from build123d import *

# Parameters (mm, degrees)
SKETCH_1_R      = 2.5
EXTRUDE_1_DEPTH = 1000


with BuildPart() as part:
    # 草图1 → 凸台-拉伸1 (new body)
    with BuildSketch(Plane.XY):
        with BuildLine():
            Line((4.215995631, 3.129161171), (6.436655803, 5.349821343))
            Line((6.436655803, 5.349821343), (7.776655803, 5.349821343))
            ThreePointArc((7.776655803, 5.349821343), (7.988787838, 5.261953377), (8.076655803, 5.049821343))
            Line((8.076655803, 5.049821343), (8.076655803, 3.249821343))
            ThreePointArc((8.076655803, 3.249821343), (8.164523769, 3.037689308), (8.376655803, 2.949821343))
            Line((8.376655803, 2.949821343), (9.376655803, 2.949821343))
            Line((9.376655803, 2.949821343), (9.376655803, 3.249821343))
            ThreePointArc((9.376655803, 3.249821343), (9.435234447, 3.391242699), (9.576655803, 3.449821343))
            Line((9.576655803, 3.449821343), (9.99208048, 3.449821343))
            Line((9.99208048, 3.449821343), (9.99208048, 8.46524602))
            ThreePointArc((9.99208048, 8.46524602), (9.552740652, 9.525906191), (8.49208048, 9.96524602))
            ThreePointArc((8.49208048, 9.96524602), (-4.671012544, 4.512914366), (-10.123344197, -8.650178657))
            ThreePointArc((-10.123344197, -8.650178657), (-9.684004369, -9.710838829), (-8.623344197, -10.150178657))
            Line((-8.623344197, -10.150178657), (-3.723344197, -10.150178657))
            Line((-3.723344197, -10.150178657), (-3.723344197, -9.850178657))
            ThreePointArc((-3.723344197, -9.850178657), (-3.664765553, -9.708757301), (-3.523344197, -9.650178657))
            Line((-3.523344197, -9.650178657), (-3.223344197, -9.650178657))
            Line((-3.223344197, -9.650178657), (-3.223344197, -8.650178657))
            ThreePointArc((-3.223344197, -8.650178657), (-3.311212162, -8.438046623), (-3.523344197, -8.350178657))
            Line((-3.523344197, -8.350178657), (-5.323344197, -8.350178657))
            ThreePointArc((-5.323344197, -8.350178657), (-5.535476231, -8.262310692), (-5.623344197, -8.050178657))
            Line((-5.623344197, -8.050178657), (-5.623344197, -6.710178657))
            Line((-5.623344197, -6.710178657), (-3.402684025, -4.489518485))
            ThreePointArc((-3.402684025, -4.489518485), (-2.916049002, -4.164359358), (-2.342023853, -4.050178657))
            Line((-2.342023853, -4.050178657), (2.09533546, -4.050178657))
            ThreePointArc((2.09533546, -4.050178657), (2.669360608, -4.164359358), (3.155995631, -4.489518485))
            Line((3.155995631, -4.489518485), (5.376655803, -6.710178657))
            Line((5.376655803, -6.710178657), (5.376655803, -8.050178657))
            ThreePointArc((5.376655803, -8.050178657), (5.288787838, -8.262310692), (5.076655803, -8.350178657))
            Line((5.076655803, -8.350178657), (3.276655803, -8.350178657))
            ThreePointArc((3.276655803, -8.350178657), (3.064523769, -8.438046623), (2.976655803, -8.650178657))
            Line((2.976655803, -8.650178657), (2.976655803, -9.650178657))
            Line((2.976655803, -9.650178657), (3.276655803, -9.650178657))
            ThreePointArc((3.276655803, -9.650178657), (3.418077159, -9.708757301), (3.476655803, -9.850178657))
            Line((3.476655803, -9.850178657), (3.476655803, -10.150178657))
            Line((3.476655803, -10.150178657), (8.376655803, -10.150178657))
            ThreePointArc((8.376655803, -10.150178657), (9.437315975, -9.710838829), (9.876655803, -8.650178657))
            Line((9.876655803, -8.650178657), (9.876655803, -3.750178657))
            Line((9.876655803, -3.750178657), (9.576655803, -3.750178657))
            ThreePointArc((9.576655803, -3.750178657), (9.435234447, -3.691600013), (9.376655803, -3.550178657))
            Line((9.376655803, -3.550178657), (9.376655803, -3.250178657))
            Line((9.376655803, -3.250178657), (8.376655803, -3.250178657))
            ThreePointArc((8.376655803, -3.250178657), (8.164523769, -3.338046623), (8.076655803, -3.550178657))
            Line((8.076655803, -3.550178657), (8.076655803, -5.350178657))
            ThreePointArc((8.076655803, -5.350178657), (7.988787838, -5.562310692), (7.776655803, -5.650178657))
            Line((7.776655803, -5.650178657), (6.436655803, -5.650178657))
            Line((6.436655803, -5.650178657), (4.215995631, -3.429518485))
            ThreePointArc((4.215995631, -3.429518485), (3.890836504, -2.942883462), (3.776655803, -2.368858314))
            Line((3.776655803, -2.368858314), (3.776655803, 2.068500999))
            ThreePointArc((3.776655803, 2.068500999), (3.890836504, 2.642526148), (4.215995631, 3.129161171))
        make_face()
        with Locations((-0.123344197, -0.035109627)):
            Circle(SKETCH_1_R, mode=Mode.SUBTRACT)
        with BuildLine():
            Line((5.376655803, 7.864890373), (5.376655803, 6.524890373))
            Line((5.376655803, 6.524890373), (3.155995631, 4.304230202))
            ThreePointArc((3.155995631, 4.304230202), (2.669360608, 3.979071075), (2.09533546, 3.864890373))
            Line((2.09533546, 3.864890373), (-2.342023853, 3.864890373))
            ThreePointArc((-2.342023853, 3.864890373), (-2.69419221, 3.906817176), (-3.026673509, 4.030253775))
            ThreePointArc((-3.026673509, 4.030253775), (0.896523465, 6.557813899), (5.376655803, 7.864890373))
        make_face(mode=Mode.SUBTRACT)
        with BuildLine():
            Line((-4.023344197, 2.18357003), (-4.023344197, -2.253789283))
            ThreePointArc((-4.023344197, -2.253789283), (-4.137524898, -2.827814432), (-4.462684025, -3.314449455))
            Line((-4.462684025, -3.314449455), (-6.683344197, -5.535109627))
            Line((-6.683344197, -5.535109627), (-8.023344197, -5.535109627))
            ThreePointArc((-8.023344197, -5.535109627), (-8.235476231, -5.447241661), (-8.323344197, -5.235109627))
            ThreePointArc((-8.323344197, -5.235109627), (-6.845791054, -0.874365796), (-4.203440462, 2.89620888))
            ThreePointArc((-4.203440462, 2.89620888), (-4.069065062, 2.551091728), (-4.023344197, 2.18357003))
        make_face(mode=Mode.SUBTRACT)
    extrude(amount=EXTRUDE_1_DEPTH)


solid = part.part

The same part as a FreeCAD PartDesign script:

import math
import FreeCAD as App
import Part
import Sketcher

V = App.Vector
Q = App.Units.Quantity

doc = App.newDocument("Part")
body = doc.addObject("PartDesign::Body", "Body")

sketch1 = doc.addObject("Sketcher::SketchObject", "Sketch")
body.addObject(sketch1)
sketch1.AttachmentSupport = (doc.XY_Plane, [""])
sketch1.MapMode = "FlatFace"
sketch1.addGeometry(Part.LineSegment(V(4.22, 3.13, 0), V(6.44, 5.35, 0)), False)
sketch1.addGeometry(Part.LineSegment(V(6.44, 5.35, 0), V(7.78, 5.35, 0)), False)
sketch1.addGeometry(Part.ArcOfCircle(Part.Circle(V(7.78, 5.05, 0), V(0, 0, 1), 0.3), math.radians(0), math.radians(90)), False)
sketch1.addGeometry(Part.LineSegment(V(8.08, 5.05, 0), V(8.08, 3.25, 0)), False)
sketch1.addGeometry(Part.ArcOfCircle(Part.Circle(V(8.38, 3.25, 0), V(0, 0, 1), 0.3), math.radians(180), math.radians(270)), False)
sketch1.addGeometry(Part.LineSegment(V(8.38, 2.95, 0), V(9.38, 2.95, 0)), False)
sketch1.addGeometry(Part.LineSegment(V(9.38, 2.95, 0), V(9.38, 3.25, 0)), False)
sketch1.addGeometry(Part.ArcOfCircle(Part.Circle(V(9.58, 3.25, 0), V(0, 0, 1), 0.2), math.radians(90), math.radians(180)), False)
sketch1.addGeometry(Part.LineSegment(V(9.58, 3.45, 0), V(9.99, 3.45, 0)), False)
sketch1.addGeometry(Part.LineSegment(V(9.99, 3.45, 0), V(9.99, 8.47, 0)), False)
sketch1.addGeometry(Part.ArcOfCircle(Part.Circle(V(8.49, 8.47, 0), V(0, 0, 1), 1.5), math.radians(0), math.radians(90)), False)
sketch1.addGeometry(Part.ArcOfCircle(Part.Circle(V(8.49, -8.65, 0), V(0, 0, 1), 18.62), math.radians(90), math.radians(180)), False)
sketch1.addGeometry(Part.ArcOfCircle(Part.Circle(V(-8.62, -8.65, 0), V(0, 0, 1), 1.5), math.radians(180), math.radians(270)), False)
sketch1.addGeometry(Part.LineSegment(V(-8.62, -10.15, 0), V(-3.72, -10.15, 0)), False)
sketch1.addGeometry(Part.LineSegment(V(-3.72, -10.15, 0), V(-3.72, -9.85, 0)), False)
sketch1.addGeometry(Part.ArcOfCircle(Part.Circle(V(-3.52, -9.85, 0), V(0, 0, 1), 0.2), math.radians(90), math.radians(180)), False)
sketch1.addGeometry(Part.LineSegment(V(-3.52, -9.65, 0), V(-3.22, -9.65, 0)), False)
sketch1.addGeometry(Part.LineSegment(V(-3.22, -9.65, 0), V(-3.22, -8.65, 0)), False)
sketch1.addGeometry(Part.ArcOfCircle(Part.Circle(V(-3.52, -8.65, 0), V(0, 0, 1), 0.3), math.radians(0), math.radians(90)), False)
sketch1.addGeometry(Part.LineSegment(V(-3.52, -8.35, 0), V(-5.32, -8.35, 0)), False)
sketch1.addGeometry(Part.ArcOfCircle(Part.Circle(V(-5.32, -8.05, 0), V(0, 0, 1), 0.3), math.radians(180), math.radians(270)), False)
sketch1.addGeometry(Part.LineSegment(V(-5.62, -8.05, 0), V(-5.62, -6.71, 0)), False)
sketch1.addGeometry(Part.LineSegment(V(-5.62, -6.71, 0), V(-3.4, -4.49, 0)), False)
sketch1.addGeometry(Part.ArcOfCircle(Part.Circle(V(-2.34, -5.55, 0), V(0, 0, 1), 1.5), math.radians(90), math.radians(135)), False)
sketch1.addGeometry(Part.LineSegment(V(-2.34, -4.05, 0), V(2.1, -4.05, 0)), False)
sketch1.addGeometry(Part.ArcOfCircle(Part.Circle(V(2.1, -5.55, 0), V(0, 0, 1), 1.5), math.radians(45), math.radians(90)), False)
sketch1.addGeometry(Part.LineSegment(V(3.16, -4.49, 0), V(5.38, -6.71, 0)), False)
sketch1.addGeometry(Part.LineSegment(V(5.38, -6.71, 0), V(5.38, -8.05, 0)), False)
sketch1.addGeometry(Part.ArcOfCircle(Part.Circle(V(5.08, -8.05, 0), V(0, 0, 1), 0.3), math.radians(-90), math.radians(0)), False)
sketch1.addGeometry(Part.LineSegment(V(5.08, -8.35, 0), V(3.28, -8.35, 0)), False)
sketch1.addGeometry(Part.ArcOfCircle(Part.Circle(V(3.28, -8.65, 0), V(0, 0, 1), 0.3), math.radians(90), math.radians(180)), False)
sketch1.addGeometry(Part.LineSegment(V(2.98, -8.65, 0), V(2.98, -9.65, 0)), False)
sketch1.addGeometry(Part.LineSegment(V(2.98, -9.65, 0), V(3.28, -9.65, 0)), False)
sketch1.addGeometry(Part.ArcOfCircle(Part.Circle(V(3.28, -9.85, 0), V(0, 0, 1), 0.2), math.radians(0), math.radians(90)), False)
sketch1.addGeometry(Part.LineSegment(V(3.48, -9.85, 0), V(3.48, -10.15, 0)), False)
sketch1.addGeometry(Part.LineSegment(V(3.48, -10.15, 0), V(8.38, -10.15, 0)), False)
sketch1.addGeometry(Part.ArcOfCircle(Part.Circle(V(8.38, -8.65, 0), V(0, 0, 1), 1.5), math.radians(-90), math.radians(0)), False)
sketch1.addGeometry(Part.LineSegment(V(9.88, -8.65, 0), V(9.88, -3.75, 0)), False)
sketch1.addGeometry(Part.LineSegment(V(9.88, -3.75, 0), V(9.58, -3.75, 0)), False)
sketch1.addGeometry(Part.ArcOfCircle(Part.Circle(V(9.58, -3.55, 0), V(0, 0, 1), 0.2), math.radians(-180), math.radians(-90)), False)
sketch1.addGeometry(Part.LineSegment(V(9.38, -3.55, 0), V(9.38, -3.25, 0)), False)
sketch1.addGeometry(Part.LineSegment(V(9.38, -3.25, 0), V(8.38, -3.25, 0)), False)
sketch1.addGeometry(Part.ArcOfCircle(Part.Circle(V(8.38, -3.55, 0), V(0, 0, 1), 0.3), math.radians(90), math.radians(180)), False)
sketch1.addGeometry(Part.LineSegment(V(8.08, -3.55, 0), V(8.08, -5.35, 0)), False)
sketch1.addGeometry(Part.ArcOfCircle(Part.Circle(V(7.78, -5.35, 0), V(0, 0, 1), 0.3), math.radians(-90), math.radians(0)), False)
sketch1.addGeometry(Part.LineSegment(V(7.78, -5.65, 0), V(6.44, -5.65, 0)), False)
sketch1.addGeometry(Part.LineSegment(V(6.44, -5.65, 0), V(4.22, -3.43, 0)), False)
sketch1.addGeometry(Part.ArcOfCircle(Part.Circle(V(5.28, -2.37, 0), V(0, 0, 1), 1.5), math.radians(180), math.radians(225)), False)
sketch1.addGeometry(Part.LineSegment(V(3.78, -2.37, 0), V(3.78, 2.07, 0)), False)
sketch1.addGeometry(Part.ArcOfCircle(Part.Circle(V(5.28, 2.07, 0), V(0, 0, 1), 1.5), math.radians(135), math.radians(180)), False)
sketch1.addGeometry(Part.ArcOfCircle(Part.Circle(V(-5.52, 2.18, 0), V(0, 0, 1), 1.5), math.radians(0), math.radians(28)), False)
sketch1.addGeometry(Part.LineSegment(V(-4.02, 2.18, 0), V(-4.02, -2.25, 0)), False)
sketch1.addGeometry(Part.ArcOfCircle(Part.Circle(V(-5.52, -2.25, 0), V(0, 0, 1), 1.5), math.radians(-45), math.radians(0)), False)
sketch1.addGeometry(Part.LineSegment(V(-4.46, -3.31, 0), V(-6.68, -5.54, 0)), False)
sketch1.addGeometry(Part.LineSegment(V(-6.68, -5.54, 0), V(-8.02, -5.54, 0)), False)
sketch1.addGeometry(Part.ArcOfCircle(Part.Circle(V(-8.02, -5.24, 0), V(0, 0, 1), 0.3), math.radians(-180), math.radians(-90)), False)
sketch1.addGeometry(Part.ArcOfCircle(Part.Circle(V(7.64, -8.21, 0), V(0, 0, 1), 16.23), math.radians(137), math.radians(169)), False)
sketch1.addGeometry(Part.Circle(V(-0.12, -0.04, 0), V(0, 0, 1), 2.5), False)
sketch1.addGeometry(Part.ArcOfCircle(Part.Circle(V(7.64, -8.21, 0), V(0, 0, 1), 16.23), math.radians(98), math.radians(131)), False)
sketch1.addGeometry(Part.LineSegment(V(5.38, 7.86, 0), V(5.38, 6.52, 0)), False)
sketch1.addGeometry(Part.LineSegment(V(5.38, 6.52, 0), V(3.16, 4.3, 0)), False)
sketch1.addGeometry(Part.ArcOfCircle(Part.Circle(V(2.1, 5.36, 0), V(0, 0, 1), 1.5), math.radians(-90), math.radians(-45)), False)
sketch1.addGeometry(Part.LineSegment(V(2.1, 3.86, 0), V(-2.34, 3.86, 0)), False)
sketch1.addGeometry(Part.ArcOfCircle(Part.Circle(V(-2.34, 5.36, 0), V(0, 0, 1), 1.5), math.radians(-117), math.radians(-90)), False)
sketch1.addConstraint(Sketcher.Constraint("Coincident", 0, 2, 1, 1))
sketch1.addConstraint(Sketcher.Constraint("Tangent", 1, 2, 2, 2))
sketch1.addConstraint(Sketcher.Constraint("Tangent", 2, 1, 3, 1))
sketch1.addConstraint(Sketcher.Constraint("Tangent", 3, 2, 4, 1))
sketch1.addConstraint(Sketcher.Constraint("Tangent", 4, 2, 5, 1))
sketch1.addConstraint(Sketcher.Constraint("Coincident", 5, 2, 6, 1))
sketch1.addConstraint(Sketcher.Constraint("Tangent", 6, 2, 7, 2))
sketch1.addConstraint(Sketcher.Constraint("Tangent", 7, 1, 8, 1))
sketch1.addConstraint(Sketcher.Constraint("Coincident", 8, 2, 9, 1))
sketch1.addConstraint(Sketcher.Constraint("Tangent", 9, 2, 10, 1))
sketch1.addConstraint(Sketcher.Constraint("Tangent", 10, 2, 11, 1))
sketch1.addConstraint(Sketcher.Constraint("Tangent", 11, 2, 12, 1))
sketch1.addConstraint(Sketcher.Constraint("Tangent", 12, 2, 13, 1))
sketch1.addConstraint(Sketcher.Constraint("Coincident", 13, 2, 14, 1))
sketch1.addConstraint(Sketcher.Constraint("Tangent", 14, 2, 15, 2))
sketch1.addConstraint(Sketcher.Constraint("Tangent", 15, 1, 16, 1))
sketch1.addConstraint(Sketcher.Constraint("Coincident", 16, 2, 17, 1))
sketch1.addConstraint(Sketcher.Constraint("Tangent", 17, 2, 18, 1))
sketch1.addConstraint(Sketcher.Constraint("Tangent", 18, 2, 19, 1))
sketch1.addConstraint(Sketcher.Constraint("Tangent", 19, 2, 20, 2))
sketch1.addConstraint(Sketcher.Constraint("Tangent", 20, 1, 21, 1))
sketch1.addConstraint(Sketcher.Constraint("Coincident", 21, 2, 22, 1))
sketch1.addConstraint(Sketcher.Constraint("Tangent", 22, 2, 23, 2))
sketch1.addConstraint(Sketcher.Constraint("Tangent", 23, 1, 24, 1))
sketch1.addConstraint(Sketcher.Constraint("Tangent", 24, 2, 25, 2))
sketch1.addConstraint(Sketcher.Constraint("Tangent", 25, 1, 26, 1))
sketch1.addConstraint(Sketcher.Constraint("Coincident", 26, 2, 27, 1))
sketch1.addConstraint(Sketcher.Constraint("Tangent", 27, 2, 28, 2))
sketch1.addConstraint(Sketcher.Constraint("Tangent", 28, 1, 29, 1))
sketch1.addConstraint(Sketcher.Constraint("Tangent", 29, 2, 30, 1))
sketch1.addConstraint(Sketcher.Constraint("Tangent", 30, 2, 31, 1))
sketch1.addConstraint(Sketcher.Constraint("Coincident", 31, 2, 32, 1))
sketch1.addConstraint(Sketcher.Constraint("Tangent", 32, 2, 33, 2))
sketch1.addConstraint(Sketcher.Constraint("Tangent", 33, 1, 34, 1))
sketch1.addConstraint(Sketcher.Constraint("Coincident", 34, 2, 35, 1))
sketch1.addConstraint(Sketcher.Constraint("Tangent", 35, 2, 36, 1))
sketch1.addConstraint(Sketcher.Constraint("Tangent", 36, 2, 37, 1))
sketch1.addConstraint(Sketcher.Constraint("Coincident", 37, 2, 38, 1))
sketch1.addConstraint(Sketcher.Constraint("Tangent", 38, 2, 39, 2))
sketch1.addConstraint(Sketcher.Constraint("Tangent", 39, 1, 40, 1))
sketch1.addConstraint(Sketcher.Constraint("Coincident", 40, 2, 41, 1))
sketch1.addConstraint(Sketcher.Constraint("Tangent", 41, 2, 42, 1))
sketch1.addConstraint(Sketcher.Constraint("Tangent", 42, 2, 43, 1))
sketch1.addConstraint(Sketcher.Constraint("Tangent", 43, 2, 44, 2))
sketch1.addConstraint(Sketcher.Constraint("Tangent", 44, 1, 45, 1))
sketch1.addConstraint(Sketcher.Constraint("Coincident", 45, 2, 46, 1))
sketch1.addConstraint(Sketcher.Constraint("Tangent", 46, 2, 47, 2))
sketch1.addConstraint(Sketcher.Constraint("Tangent", 47, 1, 48, 1))
sketch1.addConstraint(Sketcher.Constraint("Tangent", 48, 2, 49, 2))
sketch1.addConstraint(Sketcher.Constraint("Tangent", 49, 1, 0, 1))
sketch1.addConstraint(Sketcher.Constraint("Tangent", 50, 1, 51, 1))
sketch1.addConstraint(Sketcher.Constraint("Tangent", 51, 2, 52, 2))
sketch1.addConstraint(Sketcher.Constraint("Tangent", 52, 1, 53, 1))
sketch1.addConstraint(Sketcher.Constraint("Coincident", 53, 2, 54, 1))
sketch1.addConstraint(Sketcher.Constraint("Tangent", 54, 2, 55, 2))
sketch1.addConstraint(Sketcher.Constraint("Coincident", 55, 1, 56, 2))
sketch1.addConstraint(Sketcher.Constraint("Coincident", 56, 1, 50, 2))
sketch1.addConstraint(Sketcher.Constraint("Coincident", 58, 1, 59, 1))
sketch1.addConstraint(Sketcher.Constraint("Coincident", 59, 2, 60, 1))
sketch1.addConstraint(Sketcher.Constraint("Tangent", 60, 2, 61, 2))
sketch1.addConstraint(Sketcher.Constraint("Tangent", 61, 1, 62, 1))
sketch1.addConstraint(Sketcher.Constraint("Tangent", 62, 2, 63, 2))
sketch1.addConstraint(Sketcher.Constraint("Coincident", 63, 1, 58, 2))
sketch1.addConstraint(Sketcher.Constraint("Horizontal", 1))
sketch1.addConstraint(Sketcher.Constraint("Vertical", 3))
sketch1.addConstraint(Sketcher.Constraint("Horizontal", 5))
sketch1.addConstraint(Sketcher.Constraint("Vertical", 6))
sketch1.addConstraint(Sketcher.Constraint("Horizontal", 8))
sketch1.addConstraint(Sketcher.Constraint("Vertical", 9))
sketch1.addConstraint(Sketcher.Constraint("Horizontal", 13))
sketch1.addConstraint(Sketcher.Constraint("Vertical", 14))
sketch1.addConstraint(Sketcher.Constraint("Horizontal", 16))
sketch1.addConstraint(Sketcher.Constraint("Vertical", 17))
sketch1.addConstraint(Sketcher.Constraint("Horizontal", 19))
sketch1.addConstraint(Sketcher.Constraint("Vertical", 21))
sketch1.addConstraint(Sketcher.Constraint("Horizontal", 24))
sketch1.addConstraint(Sketcher.Constraint("Vertical", 27))
sketch1.addConstraint(Sketcher.Constraint("Horizontal", 29))
sketch1.addConstraint(Sketcher.Constraint("Vertical", 31))
sketch1.addConstraint(Sketcher.Constraint("Horizontal", 32))
sketch1.addConstraint(Sketcher.Constraint("Vertical", 34))
sketch1.addConstraint(Sketcher.Constraint("Horizontal", 35))
sketch1.addConstraint(Sketcher.Constraint("Vertical", 37))
sketch1.addConstraint(Sketcher.Constraint("Horizontal", 38))
sketch1.addConstraint(Sketcher.Constraint("Vertical", 40))
sketch1.addConstraint(Sketcher.Constraint("Horizontal", 41))
sketch1.addConstraint(Sketcher.Constraint("Vertical", 43))
sketch1.addConstraint(Sketcher.Constraint("Horizontal", 45))
sketch1.addConstraint(Sketcher.Constraint("Vertical", 48))
sketch1.addConstraint(Sketcher.Constraint("Vertical", 51))
sketch1.addConstraint(Sketcher.Constraint("Horizontal", 54))
sketch1.addConstraint(Sketcher.Constraint("Vertical", 59))
sketch1.addConstraint(Sketcher.Constraint("Horizontal", 62))
sketch1.addConstraint(Sketcher.Constraint("Coincident", 58, 3, 56, 3))
sketch1.addConstraint(Sketcher.Constraint("Equal", 2, 4))
sketch1.addConstraint(Sketcher.Constraint("Equal", 10, 12))
sketch1.addConstraint(Sketcher.Constraint("Equal", 7, 15))
sketch1.addConstraint(Sketcher.Constraint("Equal", 4, 18))
sketch1.addConstraint(Sketcher.Constraint("Equal", 18, 20))
sketch1.addConstraint(Sketcher.Constraint("Equal", 12, 23))
sketch1.addConstraint(Sketcher.Constraint("Equal", 23, 25))
sketch1.addConstraint(Sketcher.Constraint("Equal", 20, 28))
sketch1.addConstraint(Sketcher.Constraint("Equal", 28, 30))
sketch1.addConstraint(Sketcher.Constraint("Equal", 15, 33))
sketch1.addConstraint(Sketcher.Constraint("Equal", 25, 36))
sketch1.addConstraint(Sketcher.Constraint("Equal", 33, 39))
sketch1.addConstraint(Sketcher.Constraint("Equal", 30, 42))
sketch1.addConstraint(Sketcher.Constraint("Equal", 42, 44))
sketch1.addConstraint(Sketcher.Constraint("Equal", 36, 47))
sketch1.addConstraint(Sketcher.Constraint("Equal", 47, 49))
sketch1.addConstraint(Sketcher.Constraint("Equal", 49, 50))
sketch1.addConstraint(Sketcher.Constraint("Equal", 50, 52))
sketch1.addConstraint(Sketcher.Constraint("Equal", 44, 55))
sketch1.addConstraint(Sketcher.Constraint("Equal", 56, 58))
sketch1.addConstraint(Sketcher.Constraint("Equal", 52, 61))
sketch1.addConstraint(Sketcher.Constraint("Equal", 61, 63))
sketch1.addConstraint(Sketcher.Constraint("Parallel", 0, 22))
sketch1.addConstraint(Sketcher.Constraint("Perpendicular", 22, 26))
sketch1.addConstraint(Sketcher.Constraint("Parallel", 26, 46))
sketch1.addConstraint(Sketcher.Constraint("Perpendicular", 46, 53))
sketch1.addConstraint(Sketcher.Constraint("Parallel", 53, 60))
sketch1.addConstraint(Sketcher.Constraint("Horizontal", 4, 3, 7, 3))
sketch1.addConstraint(Sketcher.Constraint("Horizontal", 11, 3, 12, 3))
sketch1.addConstraint(Sketcher.Constraint("Horizontal", 12, 3, 18, 3))
sketch1.addConstraint(Sketcher.Constraint("Horizontal", 20, 3, 28, 3))
sketch1.addConstraint(Sketcher.Constraint("Horizontal", 15, 3, 33, 3))
sketch1.addConstraint(Sketcher.Constraint("Horizontal", 30, 3, 36, 3))
sketch1.addConstraint(Sketcher.Constraint("Horizontal", 39, 3, 42, 3))
sketch1.addConstraint(Sketcher.Constraint("Horizontal", 22, 2, 25, 1))
sketch1.addConstraint(Sketcher.Constraint("Horizontal", 21, 2, 26, 2))
sketch1.addConstraint(Sketcher.Constraint("Vertical", 10, 3, 11, 3))
sketch1.addConstraint(Sketcher.Constraint("Vertical", 15, 3, 18, 3))
sketch1.addConstraint(Sketcher.Constraint("Vertical", 30, 3, 33, 3))
sketch1.addConstraint(Sketcher.Constraint("Vertical", 4, 3, 36, 3))
sketch1.addConstraint(Sketcher.Constraint("Vertical", 7, 3, 39, 3))
sketch1.addConstraint(Sketcher.Constraint("Vertical", 36, 3, 42, 3))
sketch1.addConstraint(Sketcher.Constraint("Vertical", 25, 3, 61, 3))
sketch1.addConstraint(Sketcher.Constraint("Vertical", 23, 3, 63, 3))
sketch1.addConstraint(Sketcher.Constraint("Vertical", 0, 2, 45, 2))
sketch1.addConstraint(Sketcher.Constraint("Vertical", 27, 2, 58, 1))
sketch1.addConstraint(Sketcher.Constraint("Equal", 19, 29))
sketch1.addConstraint(Sketcher.Constraint("Equal", 13, 35))
sketch1.addConstraint(Sketcher.Constraint("Equal", 32, 38))
sketch1.addConstraint(Sketcher.Constraint("Equal", 45, 54))
sketch1.addConstraint(Sketcher.Constraint("Equal", 29, 3))
sketch1.addConstraint(Sketcher.Constraint("Equal", 6, 14))
sketch1.addConstraint(Sketcher.Constraint("Equal", 54, 21))
sketch1.addConstraint(Sketcher.Constraint("Equal", 35, 37))
sketch1.addConstraint(Sketcher.Constraint("Equal", 3, 43))
sketch1.addConstraint(Sketcher.Constraint("Equal", 62, 48))
sketch1.addConstraint(Sketcher.Constraint("Equal", 48, 51))
sketch1.addConstraint(Sketcher.Constraint("Equal", 27, 59))
sketch1.addConstraint(Sketcher.Constraint("Equal", 0, 22))
sketch1.addConstraint(Sketcher.Constraint("Equal", 46, 53))
sketch1.addConstraint(Sketcher.Constraint("Diameter", 57, Q("5 mm")))
sketch1.addConstraint(Sketcher.Constraint("Radius", 2, Q("0.3 mm")))
sketch1.addConstraint(Sketcher.Constraint("Radius", 7, Q("0.2 mm")))
sketch1.addConstraint(Sketcher.Constraint("Radius", 10, Q("1.5 mm")))
sketch1.addConstraint(Sketcher.Constraint("DistanceX", 13, 1, 13, 2, Q("4.9 mm")))
sketch1.addConstraint(Sketcher.Constraint("DistanceX", 19, 2, 19, 1, Q("1.8 mm")))
sketch1.addConstraint(Sketcher.Constraint("DistanceX", 1, 1, 1, 2, Q("1.34 mm")))
sketch1.addConstraint(Sketcher.Constraint("Radius", 11, Q("18.615425 mm")))
sketch1.addConstraint(Sketcher.Constraint("Radius", 56, Q("16.234974 mm")))
sketch1.addConstraint(Sketcher.Constraint("DistanceX", 24, 1, 24, 2, Q("4.437359 mm")))
sketch1.addConstraint(Sketcher.Constraint("DistanceY", -1, 1, 49, 3, Q("2.068501 mm")))
sketch1.addConstraint(Sketcher.Constraint("DistanceX", 8, 1, 8, 2, Q("0.415425 mm")))
sketch1.addConstraint(Sketcher.Constraint("DistanceX", -1, 1, 10, 3, Q("8.49208 mm")))
sketch1.addConstraint(Sketcher.Constraint("DistanceY", -1, 1, 50, 3, Q("2.18357 mm")))
sketch1.addConstraint(Sketcher.Constraint("DistanceX", -1, 1, 56, 3, Q("7.636361 mm")))
sketch1.addConstraint(Sketcher.Constraint("DistanceY", 57, 3, -1, 1, Q("0.03511 mm")))
sketch1.addConstraint(Sketcher.Constraint("DistanceY", -1, 1, 61, 3, Q("5.36489 mm")))
sketch1.addConstraint(Sketcher.Constraint("DistanceY", 55, 1, -1, 1, Q("5.23511 mm")))
sketch1.addConstraint(Sketcher.Constraint("DistanceX", 57, 3, -1, 1, Q("0.123344 mm")))
pad1 = doc.addObject("PartDesign::Pad", "Pad")
body.addObject(pad1)
pad1.Profile = sketch1
pad1.Length = 1000

doc.recompute()
